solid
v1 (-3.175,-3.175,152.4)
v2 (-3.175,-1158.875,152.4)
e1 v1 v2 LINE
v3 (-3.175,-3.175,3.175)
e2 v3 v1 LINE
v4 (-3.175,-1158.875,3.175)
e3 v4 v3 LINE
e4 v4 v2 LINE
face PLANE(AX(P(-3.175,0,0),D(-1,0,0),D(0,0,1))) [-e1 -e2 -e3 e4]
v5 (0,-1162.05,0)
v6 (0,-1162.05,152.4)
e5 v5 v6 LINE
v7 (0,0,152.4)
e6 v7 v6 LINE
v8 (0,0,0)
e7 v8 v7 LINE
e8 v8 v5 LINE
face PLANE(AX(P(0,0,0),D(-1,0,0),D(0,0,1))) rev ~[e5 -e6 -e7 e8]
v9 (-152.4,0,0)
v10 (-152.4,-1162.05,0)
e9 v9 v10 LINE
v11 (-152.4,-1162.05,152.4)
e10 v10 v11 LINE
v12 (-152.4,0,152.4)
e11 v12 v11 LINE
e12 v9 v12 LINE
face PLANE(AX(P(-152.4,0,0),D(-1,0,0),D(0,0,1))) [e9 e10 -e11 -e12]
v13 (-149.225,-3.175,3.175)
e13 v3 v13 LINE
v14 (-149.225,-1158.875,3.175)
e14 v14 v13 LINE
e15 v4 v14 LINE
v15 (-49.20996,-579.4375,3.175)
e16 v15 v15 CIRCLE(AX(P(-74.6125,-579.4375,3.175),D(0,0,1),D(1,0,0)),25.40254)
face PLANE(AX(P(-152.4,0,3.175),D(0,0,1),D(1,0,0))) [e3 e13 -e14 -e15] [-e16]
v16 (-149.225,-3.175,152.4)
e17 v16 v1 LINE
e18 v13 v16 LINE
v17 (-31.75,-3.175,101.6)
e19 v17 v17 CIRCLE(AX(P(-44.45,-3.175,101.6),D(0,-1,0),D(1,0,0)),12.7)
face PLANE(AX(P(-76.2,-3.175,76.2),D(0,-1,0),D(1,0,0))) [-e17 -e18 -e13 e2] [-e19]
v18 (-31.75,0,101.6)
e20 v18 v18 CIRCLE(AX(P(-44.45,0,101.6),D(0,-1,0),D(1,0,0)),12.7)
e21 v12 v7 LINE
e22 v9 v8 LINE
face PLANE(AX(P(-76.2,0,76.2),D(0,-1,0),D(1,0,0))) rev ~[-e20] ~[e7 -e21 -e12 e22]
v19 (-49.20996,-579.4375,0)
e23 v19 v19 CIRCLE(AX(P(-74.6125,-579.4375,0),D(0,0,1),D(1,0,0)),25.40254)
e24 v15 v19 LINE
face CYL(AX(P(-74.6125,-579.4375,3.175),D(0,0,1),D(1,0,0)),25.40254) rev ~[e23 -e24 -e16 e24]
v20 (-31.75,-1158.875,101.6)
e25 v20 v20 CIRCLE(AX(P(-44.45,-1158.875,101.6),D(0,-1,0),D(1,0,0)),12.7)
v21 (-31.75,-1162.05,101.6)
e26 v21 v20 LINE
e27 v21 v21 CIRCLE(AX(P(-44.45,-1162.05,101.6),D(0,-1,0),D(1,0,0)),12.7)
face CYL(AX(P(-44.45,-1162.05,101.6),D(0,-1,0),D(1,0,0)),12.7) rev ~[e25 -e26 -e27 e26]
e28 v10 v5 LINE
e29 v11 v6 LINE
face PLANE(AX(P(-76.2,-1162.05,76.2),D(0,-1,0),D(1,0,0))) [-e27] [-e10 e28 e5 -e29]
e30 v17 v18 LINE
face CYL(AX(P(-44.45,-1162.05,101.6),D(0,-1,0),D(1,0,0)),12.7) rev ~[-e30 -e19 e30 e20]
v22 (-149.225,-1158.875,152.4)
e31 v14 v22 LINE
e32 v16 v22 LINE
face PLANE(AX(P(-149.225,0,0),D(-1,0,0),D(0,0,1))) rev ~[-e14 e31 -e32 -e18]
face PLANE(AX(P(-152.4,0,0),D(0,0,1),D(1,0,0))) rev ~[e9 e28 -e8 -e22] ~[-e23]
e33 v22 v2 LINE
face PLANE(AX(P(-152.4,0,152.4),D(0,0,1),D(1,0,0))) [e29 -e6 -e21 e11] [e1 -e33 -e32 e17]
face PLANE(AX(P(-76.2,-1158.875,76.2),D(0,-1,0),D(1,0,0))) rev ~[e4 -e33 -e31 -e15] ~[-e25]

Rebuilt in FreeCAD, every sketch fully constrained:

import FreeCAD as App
import Part
import Sketcher
from FreeCAD import Vector
Q = App.Units.Quantity


def faces_at(feature, points):
    """Names of the faces that lie closest to the given points."""
    faces = feature.Shape.Faces
    near = lambda p: min(range(len(faces)), key=lambda i: faces[i].distToShape(Part.Vertex(*p))[0])
    return sorted({f"Face{near(p) + 1}" for p in points})


def add_polygon(sketch, points):
    """Adds a closed chain of lines whose ends are joined by coincident constraints."""
    first, n = sketch.GeometryCount, len(points)
    for a, b in zip(points, points[1:] + points[:1]):
        sketch.addGeometry(Part.LineSegment(App.Vector(*a, 0), App.Vector(*b, 0)), False)
    for i in range(n):
        sketch.addConstraint(Sketcher.Constraint("Coincident", first + i, 2, first + (i + 1) % n, 1))

doc = App.newDocument("Part")
body = doc.addObject("PartDesign::Body", "Body")

sketch1 = body.newObject("Sketcher::SketchObject", "Sketch")
sketch1.AttachmentSupport = (doc.getObject("XZ_Plane"), [""])
sketch1.MapMode = "FlatFace"
add_polygon(sketch1, [(-152, 152), (-152, 0), (0, 0), (0, 152)])
sketch1.addConstraint([
    Sketcher.Constraint("Vertical", 0),
    Sketcher.Constraint("Horizontal", 1),
    Sketcher.Constraint("Vertical", 2),
    Sketcher.Constraint("Horizontal", 3),
    Sketcher.Constraint("Coincident", 1, 2, -1, 1),
    Sketcher.Constraint("Equal", 3, 0),
    Sketcher.Constraint("DistanceX", 1, 1, 1, 2, Q("6 in")),
])
pad1 = body.newObject("PartDesign::Pad", "Pad")
pad1.Profile = sketch1
pad1.Length = Q("45.75 in")
doc.recompute()

thickness = body.newObject("PartDesign::Thickness", "Thickness")
thickness.Base = (pad1, faces_at(pad1, [(-76.2, -581.025, 152.4)]))
thickness.Value = Q("0.125 in")
thickness.Reversed = True
thickness.Join = "Arc"

sketch2 = body.newObject("Sketcher::SketchObject", "Sketch001")
sketch2.AttachmentSupport = (doc.getObject("XY_Plane"), [""])
sketch2.MapMode = "FlatFace"
sketch2.AttachmentOffset = App.Placement(Vector(0, 0, 0.125 * 25.4), App.Rotation())
sketch2.addGeometry(Part.Circle(Vector(-75, -579, 0), Vector(0, 0, 1), 25), False)
sketch2.addConstraint([
    Sketcher.Constraint("Diameter", 0, Q("2.0002 in")),
    Sketcher.Constraint("DistanceX", 0, 3, -1, 1, Q("2.9375 in")),
    Sketcher.Constraint("DistanceY", 0, 3, -1, 1, Q("22.8125 in")),
])
pocket1 = body.newObject("PartDesign::Pocket", "Pocket")
pocket1.Profile = sketch2
pocket1.Type = "ThroughAll"

sketch3 = body.newObject("Sketcher::SketchObject", "Sketch002")
sketch3.AttachmentSupport = (doc.getObject("XZ_Plane"), [""])
sketch3.MapMode = "FlatFace"
sketch3.AttachmentOffset = App.Placement(Vector(0, 0, 45.75 * 25.4), App.Rotation())
sketch3.addGeometry(Part.Circle(Vector(-44, 102, 0), Vector(0, 0, 1), 13), False)
sketch3.addConstraint([
    Sketcher.Constraint("Diameter", 0, Q("1 in")),
    Sketcher.Constraint("DistanceY", -1, 1, 0, 3, Q("4 in")),
    Sketcher.Constraint("DistanceX", 0, 3, -1, 1, Q("1.75 in")),
])
pocket2 = body.newObject("PartDesign::Pocket", "Pocket001")
pocket2.Profile = sketch3
pocket2.Type = "ThroughAll"

doc.recompute()
